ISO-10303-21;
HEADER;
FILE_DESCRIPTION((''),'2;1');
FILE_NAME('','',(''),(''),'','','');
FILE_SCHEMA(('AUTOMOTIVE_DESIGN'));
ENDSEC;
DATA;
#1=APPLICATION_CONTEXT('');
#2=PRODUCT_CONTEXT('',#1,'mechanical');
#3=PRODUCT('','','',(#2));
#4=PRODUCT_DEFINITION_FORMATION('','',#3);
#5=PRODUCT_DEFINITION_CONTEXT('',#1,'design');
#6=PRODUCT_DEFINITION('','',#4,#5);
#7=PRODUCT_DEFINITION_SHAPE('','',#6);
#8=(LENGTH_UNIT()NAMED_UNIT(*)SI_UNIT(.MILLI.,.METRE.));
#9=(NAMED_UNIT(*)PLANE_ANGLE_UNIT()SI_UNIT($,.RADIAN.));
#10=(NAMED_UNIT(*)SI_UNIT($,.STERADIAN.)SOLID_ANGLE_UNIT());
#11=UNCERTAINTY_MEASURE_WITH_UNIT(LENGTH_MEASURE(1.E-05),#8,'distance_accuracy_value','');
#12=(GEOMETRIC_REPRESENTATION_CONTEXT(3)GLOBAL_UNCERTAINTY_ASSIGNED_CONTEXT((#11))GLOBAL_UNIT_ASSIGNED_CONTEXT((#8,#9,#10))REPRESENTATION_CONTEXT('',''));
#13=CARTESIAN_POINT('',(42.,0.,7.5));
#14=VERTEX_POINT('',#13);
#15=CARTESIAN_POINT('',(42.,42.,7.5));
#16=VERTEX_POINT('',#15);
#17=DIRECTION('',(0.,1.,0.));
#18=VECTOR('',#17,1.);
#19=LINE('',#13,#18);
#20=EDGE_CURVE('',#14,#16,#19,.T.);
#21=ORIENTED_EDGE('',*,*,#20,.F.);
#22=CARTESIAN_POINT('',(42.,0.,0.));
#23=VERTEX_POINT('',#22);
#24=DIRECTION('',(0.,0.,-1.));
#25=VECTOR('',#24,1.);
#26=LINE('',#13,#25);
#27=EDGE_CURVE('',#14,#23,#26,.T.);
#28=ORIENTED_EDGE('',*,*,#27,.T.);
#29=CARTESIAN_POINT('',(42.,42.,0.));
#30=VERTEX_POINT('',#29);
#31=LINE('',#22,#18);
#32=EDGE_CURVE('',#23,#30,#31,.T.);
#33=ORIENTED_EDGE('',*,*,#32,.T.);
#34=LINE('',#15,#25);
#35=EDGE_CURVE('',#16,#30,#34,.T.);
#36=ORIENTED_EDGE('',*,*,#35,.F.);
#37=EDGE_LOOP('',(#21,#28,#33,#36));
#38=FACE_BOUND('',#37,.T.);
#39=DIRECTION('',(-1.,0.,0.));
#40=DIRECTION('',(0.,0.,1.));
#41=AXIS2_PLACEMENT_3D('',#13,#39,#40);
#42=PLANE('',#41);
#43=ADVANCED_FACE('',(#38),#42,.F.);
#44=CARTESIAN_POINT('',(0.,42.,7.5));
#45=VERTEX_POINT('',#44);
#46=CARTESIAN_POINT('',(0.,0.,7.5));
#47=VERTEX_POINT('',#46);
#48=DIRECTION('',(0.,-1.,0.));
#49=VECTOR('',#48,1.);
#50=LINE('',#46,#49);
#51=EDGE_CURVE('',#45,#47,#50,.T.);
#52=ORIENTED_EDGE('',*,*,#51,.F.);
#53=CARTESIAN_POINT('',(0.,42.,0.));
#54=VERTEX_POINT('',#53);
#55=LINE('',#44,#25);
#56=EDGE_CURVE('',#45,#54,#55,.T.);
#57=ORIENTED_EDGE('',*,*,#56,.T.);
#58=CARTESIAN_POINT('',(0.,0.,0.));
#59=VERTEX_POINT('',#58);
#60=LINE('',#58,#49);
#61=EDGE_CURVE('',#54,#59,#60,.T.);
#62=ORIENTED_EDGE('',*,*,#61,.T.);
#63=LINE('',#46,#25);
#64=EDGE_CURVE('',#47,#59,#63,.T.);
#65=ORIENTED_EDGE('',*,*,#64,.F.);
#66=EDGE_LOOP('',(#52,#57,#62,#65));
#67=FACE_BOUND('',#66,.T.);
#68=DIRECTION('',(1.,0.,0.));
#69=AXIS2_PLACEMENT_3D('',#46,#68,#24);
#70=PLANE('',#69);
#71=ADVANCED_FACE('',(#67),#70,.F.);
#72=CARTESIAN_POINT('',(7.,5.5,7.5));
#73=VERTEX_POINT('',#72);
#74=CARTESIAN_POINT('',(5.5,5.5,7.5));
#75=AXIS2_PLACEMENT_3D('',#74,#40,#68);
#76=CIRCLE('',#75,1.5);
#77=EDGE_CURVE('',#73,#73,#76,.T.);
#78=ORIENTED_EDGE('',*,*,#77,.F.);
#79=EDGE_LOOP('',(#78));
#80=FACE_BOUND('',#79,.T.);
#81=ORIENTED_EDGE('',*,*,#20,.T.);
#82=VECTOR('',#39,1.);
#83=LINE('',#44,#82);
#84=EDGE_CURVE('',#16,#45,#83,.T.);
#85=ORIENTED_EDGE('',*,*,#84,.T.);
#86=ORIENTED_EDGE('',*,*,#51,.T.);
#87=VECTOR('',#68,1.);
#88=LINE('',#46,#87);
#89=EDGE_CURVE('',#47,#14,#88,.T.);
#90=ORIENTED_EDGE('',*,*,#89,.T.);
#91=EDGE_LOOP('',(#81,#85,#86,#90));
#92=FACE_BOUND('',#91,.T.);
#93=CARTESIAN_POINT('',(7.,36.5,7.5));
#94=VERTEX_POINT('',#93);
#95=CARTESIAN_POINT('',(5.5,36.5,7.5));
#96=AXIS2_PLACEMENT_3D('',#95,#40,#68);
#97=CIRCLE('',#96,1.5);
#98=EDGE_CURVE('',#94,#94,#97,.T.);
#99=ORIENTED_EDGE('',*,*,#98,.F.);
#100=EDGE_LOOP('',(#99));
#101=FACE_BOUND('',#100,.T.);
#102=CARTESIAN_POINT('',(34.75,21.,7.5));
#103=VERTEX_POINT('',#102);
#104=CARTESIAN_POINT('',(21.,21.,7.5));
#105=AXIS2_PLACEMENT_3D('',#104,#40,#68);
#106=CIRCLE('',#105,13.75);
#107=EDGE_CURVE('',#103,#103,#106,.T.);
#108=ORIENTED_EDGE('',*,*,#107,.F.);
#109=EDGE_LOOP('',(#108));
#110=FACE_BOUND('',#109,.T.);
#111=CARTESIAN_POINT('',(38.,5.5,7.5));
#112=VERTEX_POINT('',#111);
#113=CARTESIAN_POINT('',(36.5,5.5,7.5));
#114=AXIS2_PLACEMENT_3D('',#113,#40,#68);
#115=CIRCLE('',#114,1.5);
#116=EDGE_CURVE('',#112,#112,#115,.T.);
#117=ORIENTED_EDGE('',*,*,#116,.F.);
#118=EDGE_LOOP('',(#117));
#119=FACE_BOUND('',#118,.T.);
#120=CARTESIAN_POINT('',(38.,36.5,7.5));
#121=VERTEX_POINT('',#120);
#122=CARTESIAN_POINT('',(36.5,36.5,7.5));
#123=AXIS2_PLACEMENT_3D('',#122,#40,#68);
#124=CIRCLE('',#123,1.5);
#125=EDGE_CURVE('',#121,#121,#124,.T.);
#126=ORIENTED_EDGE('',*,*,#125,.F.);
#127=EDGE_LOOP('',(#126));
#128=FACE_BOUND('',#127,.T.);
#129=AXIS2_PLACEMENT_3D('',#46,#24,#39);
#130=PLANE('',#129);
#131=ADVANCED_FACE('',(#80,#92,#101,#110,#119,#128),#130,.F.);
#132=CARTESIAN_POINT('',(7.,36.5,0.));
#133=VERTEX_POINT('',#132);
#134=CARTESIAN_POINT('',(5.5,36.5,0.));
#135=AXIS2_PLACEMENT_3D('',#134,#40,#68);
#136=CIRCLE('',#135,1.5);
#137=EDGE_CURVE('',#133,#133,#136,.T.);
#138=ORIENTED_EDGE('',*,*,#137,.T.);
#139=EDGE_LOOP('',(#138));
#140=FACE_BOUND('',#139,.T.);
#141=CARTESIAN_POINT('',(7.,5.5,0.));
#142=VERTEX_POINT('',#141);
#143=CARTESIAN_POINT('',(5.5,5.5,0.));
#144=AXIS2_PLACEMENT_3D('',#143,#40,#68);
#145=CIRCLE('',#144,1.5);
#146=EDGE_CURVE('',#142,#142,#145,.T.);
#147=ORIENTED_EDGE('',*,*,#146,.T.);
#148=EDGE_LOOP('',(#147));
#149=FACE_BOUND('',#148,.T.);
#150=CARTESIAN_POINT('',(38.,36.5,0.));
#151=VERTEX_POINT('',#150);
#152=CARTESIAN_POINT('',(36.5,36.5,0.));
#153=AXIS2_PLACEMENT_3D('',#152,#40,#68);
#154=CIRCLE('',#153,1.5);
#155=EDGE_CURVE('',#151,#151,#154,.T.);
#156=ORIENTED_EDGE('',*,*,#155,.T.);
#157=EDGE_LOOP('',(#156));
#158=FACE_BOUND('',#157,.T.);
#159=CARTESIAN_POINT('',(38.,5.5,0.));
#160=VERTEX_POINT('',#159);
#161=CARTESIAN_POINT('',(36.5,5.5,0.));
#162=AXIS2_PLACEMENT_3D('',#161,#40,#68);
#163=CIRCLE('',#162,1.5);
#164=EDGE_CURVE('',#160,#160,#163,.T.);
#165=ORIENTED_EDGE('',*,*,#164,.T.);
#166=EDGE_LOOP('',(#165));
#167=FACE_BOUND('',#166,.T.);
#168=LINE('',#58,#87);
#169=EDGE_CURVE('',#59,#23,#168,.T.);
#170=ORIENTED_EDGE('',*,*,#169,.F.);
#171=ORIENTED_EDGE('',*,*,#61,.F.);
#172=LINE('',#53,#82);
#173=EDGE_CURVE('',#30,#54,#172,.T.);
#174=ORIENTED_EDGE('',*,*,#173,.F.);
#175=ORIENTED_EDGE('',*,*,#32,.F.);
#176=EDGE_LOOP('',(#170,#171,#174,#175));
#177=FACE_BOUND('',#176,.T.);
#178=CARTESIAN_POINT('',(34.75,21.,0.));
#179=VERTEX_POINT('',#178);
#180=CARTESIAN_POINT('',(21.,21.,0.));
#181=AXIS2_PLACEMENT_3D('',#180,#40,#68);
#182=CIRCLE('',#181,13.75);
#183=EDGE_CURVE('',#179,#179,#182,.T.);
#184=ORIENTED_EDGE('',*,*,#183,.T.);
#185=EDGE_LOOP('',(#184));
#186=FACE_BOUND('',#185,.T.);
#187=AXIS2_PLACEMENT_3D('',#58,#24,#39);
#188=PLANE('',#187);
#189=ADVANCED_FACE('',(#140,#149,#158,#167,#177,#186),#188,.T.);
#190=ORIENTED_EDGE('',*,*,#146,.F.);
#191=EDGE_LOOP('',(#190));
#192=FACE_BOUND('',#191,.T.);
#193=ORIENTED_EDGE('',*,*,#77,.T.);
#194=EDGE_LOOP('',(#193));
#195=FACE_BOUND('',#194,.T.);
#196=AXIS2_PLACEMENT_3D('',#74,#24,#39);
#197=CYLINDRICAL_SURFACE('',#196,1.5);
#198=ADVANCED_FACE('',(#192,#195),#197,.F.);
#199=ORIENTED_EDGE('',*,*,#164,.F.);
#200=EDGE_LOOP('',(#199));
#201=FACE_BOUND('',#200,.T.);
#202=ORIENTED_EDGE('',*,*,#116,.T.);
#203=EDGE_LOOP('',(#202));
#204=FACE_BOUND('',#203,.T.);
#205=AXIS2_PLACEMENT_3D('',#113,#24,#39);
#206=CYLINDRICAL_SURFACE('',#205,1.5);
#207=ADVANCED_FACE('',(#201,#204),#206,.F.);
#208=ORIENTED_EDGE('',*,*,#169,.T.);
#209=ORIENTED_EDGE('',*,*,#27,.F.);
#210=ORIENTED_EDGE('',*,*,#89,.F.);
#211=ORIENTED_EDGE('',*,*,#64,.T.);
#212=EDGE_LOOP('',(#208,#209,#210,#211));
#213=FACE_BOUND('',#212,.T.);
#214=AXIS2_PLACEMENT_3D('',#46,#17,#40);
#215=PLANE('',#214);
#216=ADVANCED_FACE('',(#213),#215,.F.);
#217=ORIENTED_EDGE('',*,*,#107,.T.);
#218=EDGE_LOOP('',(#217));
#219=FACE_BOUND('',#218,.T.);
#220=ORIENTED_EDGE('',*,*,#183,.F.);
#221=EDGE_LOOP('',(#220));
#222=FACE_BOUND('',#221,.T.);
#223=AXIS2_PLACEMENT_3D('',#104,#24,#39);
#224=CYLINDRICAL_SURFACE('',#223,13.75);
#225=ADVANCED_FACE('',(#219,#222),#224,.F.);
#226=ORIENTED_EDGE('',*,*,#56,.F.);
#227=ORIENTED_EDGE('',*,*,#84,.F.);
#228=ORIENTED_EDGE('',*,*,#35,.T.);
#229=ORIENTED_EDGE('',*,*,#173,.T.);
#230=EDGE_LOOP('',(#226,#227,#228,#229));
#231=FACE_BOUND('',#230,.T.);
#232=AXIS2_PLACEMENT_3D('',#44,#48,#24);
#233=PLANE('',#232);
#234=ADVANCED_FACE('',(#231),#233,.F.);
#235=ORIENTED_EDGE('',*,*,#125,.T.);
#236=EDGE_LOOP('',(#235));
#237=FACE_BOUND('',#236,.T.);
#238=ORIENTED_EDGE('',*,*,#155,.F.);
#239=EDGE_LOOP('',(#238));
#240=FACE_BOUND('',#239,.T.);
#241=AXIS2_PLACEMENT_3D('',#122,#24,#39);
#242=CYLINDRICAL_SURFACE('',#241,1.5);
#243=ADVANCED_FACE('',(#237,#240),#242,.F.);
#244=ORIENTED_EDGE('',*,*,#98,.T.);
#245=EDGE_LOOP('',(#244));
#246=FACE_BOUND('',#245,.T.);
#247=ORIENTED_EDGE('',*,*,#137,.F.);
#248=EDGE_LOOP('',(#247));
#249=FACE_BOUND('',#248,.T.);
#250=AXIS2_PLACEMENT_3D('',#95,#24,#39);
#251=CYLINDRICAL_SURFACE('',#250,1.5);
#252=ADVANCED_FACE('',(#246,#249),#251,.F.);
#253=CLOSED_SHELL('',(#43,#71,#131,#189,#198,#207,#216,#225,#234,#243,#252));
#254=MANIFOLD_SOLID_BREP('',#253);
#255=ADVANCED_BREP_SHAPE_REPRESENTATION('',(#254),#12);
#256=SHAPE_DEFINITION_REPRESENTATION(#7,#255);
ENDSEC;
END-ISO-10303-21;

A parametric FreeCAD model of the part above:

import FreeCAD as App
import Part
import Sketcher

doc = App.newDocument("Part")
params = doc.addObject("Spreadsheet::Sheet", "Params")
for row, (alias, value) in enumerate([
    ("sketch1_diameter", "3 mm"),
    ("sketch1_diameter2", "27.5 mm"),
    ("sketch1_width", "42 mm"),
    ("pad1_length", "7.5 mm"),
], start=1):
    params.set(f"A{row}", alias)
    params.set(f"B{row}", "=" + value)
    params.setAlias(f"B{row}", alias)

body = doc.addObject("PartDesign::Body", "Body")

# Sketch on XY plane
sketch1 = body.newObject("Sketcher::SketchObject", "Sketch")
sketch1.AttachmentSupport = (doc.getObject("XY_Plane"), [""])
sketch1.MapMode = "FlatFace"
sketch1.addGeometry([
    Part.LineSegment(App.Vector(0, 42, 0), App.Vector(0, 0, 0)),  # 0
    Part.LineSegment(App.Vector(0, 0, 0), App.Vector(42, 0, 0)),  # 1
    Part.LineSegment(App.Vector(42, 0, 0), App.Vector(42, 42, 0)),  # 2
    Part.LineSegment(App.Vector(42, 42, 0), App.Vector(0, 42, 0)),  # 3
    Part.Circle(App.Vector(5.5, 5.5, 0), App.Vector(0, 0, 1), 1.5),  # 4
    Part.Circle(App.Vector(36.5, 5.5, 0), App.Vector(0, 0, 1), 1.5),  # 5
    Part.Circle(App.Vector(5.5, 36.5, 0), App.Vector(0, 0, 1), 1.5),  # 6
    Part.Circle(App.Vector(21, 21, 0), App.Vector(0, 0, 1), 13.8),  # 7
    Part.Circle(App.Vector(36.5, 36.5, 0), App.Vector(0, 0, 1), 1.5),  # 8
], False)
sketch1.addConstraint([
    Sketcher.Constraint("Coincident", 0, 2, 1, 1),
    Sketcher.Constraint("Coincident", 1, 2, 2, 1),
    Sketcher.Constraint("Coincident", 2, 2, 3, 1),
    Sketcher.Constraint("Coincident", 3, 2, 0, 1),
    Sketcher.Constraint("Vertical", 0),
    Sketcher.Constraint("Horizontal", 1),
    Sketcher.Constraint("Vertical", 2),
    Sketcher.Constraint("Horizontal", 3),
    Sketcher.Constraint("Coincident", 0, 2, -1, 1),
    Sketcher.Constraint("Equal", 4, 5),
    Sketcher.Constraint("Equal", 5, 6),
    Sketcher.Constraint("Equal", 6, 8),
    Sketcher.Constraint("Horizontal", 4, 3, 5, 3),
    Sketcher.Constraint("Horizontal", 6, 3, 8, 3),
    Sketcher.Constraint("Vertical", 4, 3, 6, 3),
    Sketcher.Constraint("Vertical", 5, 3, 8, 3),
    Sketcher.Constraint("Equal", 3, 0),
    Sketcher.Constraint("Diameter", 4, 3.0),
    Sketcher.Constraint("Diameter", 7, 27.5),
    Sketcher.Constraint("DistanceX", 1, 1, 1, 2, 42.0),
    Sketcher.Constraint("DistanceX", -1, 1, 7, 3, 21.0),
    Sketcher.Constraint("DistanceY", -1, 1, 7, 3, 21.0),
    Sketcher.Constraint("DistanceX", 4, 3, 5, 3, 31.0),
    Sketcher.Constraint("DistanceY", 4, 3, 6, 3, 31.0),
    Sketcher.Constraint("DistanceX", -1, 1, 4, 3, 5.5),
    Sketcher.Constraint("DistanceY", -1, 1, 4, 3, 5.5),
])
sketch1.setExpression("Constraints[17]", "Params.sketch1_diameter")
sketch1.setExpression("Constraints[18]", "Params.sketch1_diameter2")
sketch1.setExpression("Constraints[19]", "Params.sketch1_width")
pad1 = body.newObject("PartDesign::Pad", "Pad")
pad1.Profile = sketch1
pad1.setExpression("Length", "Params.pad1_length")

doc.recompute()
